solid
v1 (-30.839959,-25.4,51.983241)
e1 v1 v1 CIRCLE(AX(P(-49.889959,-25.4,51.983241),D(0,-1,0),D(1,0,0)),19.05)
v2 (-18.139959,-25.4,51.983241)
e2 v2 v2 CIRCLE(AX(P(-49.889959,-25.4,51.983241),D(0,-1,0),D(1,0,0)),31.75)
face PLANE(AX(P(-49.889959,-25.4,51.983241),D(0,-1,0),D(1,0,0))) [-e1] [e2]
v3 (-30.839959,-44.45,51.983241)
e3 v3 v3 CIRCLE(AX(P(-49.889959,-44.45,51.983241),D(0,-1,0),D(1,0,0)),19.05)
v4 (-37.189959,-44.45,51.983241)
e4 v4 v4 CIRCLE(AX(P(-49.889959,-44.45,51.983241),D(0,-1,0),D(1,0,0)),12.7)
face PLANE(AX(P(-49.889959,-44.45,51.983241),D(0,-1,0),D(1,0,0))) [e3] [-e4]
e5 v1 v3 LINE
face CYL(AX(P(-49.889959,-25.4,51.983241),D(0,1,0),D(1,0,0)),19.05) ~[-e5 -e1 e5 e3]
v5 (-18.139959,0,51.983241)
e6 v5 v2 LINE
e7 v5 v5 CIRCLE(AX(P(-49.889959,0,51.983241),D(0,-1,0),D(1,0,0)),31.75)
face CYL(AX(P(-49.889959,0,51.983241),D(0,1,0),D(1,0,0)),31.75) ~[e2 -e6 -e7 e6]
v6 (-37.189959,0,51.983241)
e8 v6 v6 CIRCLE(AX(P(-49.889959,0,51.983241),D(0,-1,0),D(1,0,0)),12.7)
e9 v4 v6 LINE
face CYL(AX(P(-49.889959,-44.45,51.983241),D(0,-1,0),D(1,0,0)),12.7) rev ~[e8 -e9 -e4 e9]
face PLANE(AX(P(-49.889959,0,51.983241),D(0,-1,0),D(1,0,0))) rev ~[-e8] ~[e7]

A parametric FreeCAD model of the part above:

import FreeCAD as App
import Part
import Sketcher

V = App.Vector
Q = App.Units.Quantity

doc = App.newDocument("Part")
body = doc.addObject("PartDesign::Body", "Body")

# Sketch on XZ plane
sketch1 = body.newObject("Sketcher::SketchObject", "Sketch")
sketch1.AttachmentSupport = (doc.getObject("XZ_Plane"), [""])
sketch1.MapMode = "FlatFace"
sketch1.addGeometry(Part.Circle(V(-50, 52, 0), V(0, 0, 1), 32), False)
sketch1.addConstraint([
    Sketcher.Constraint("Diameter", 0, Q("2.5 in")),
    Sketcher.Constraint("DistanceX", 0, 3, -1, 1, 49.889959),
    Sketcher.Constraint("DistanceY", -1, 1, 0, 3, 51.983241),
])
pad1 = body.newObject("PartDesign::Pad", "Pad")
pad1.Profile = sketch1
pad1.Length = Q("1 in")

# Sketch on XZ plane
sketch2 = body.newObject("Sketcher::SketchObject", "Sketch001")
sketch2.AttachmentSupport = (doc.getObject("XZ_Plane"), [""])
sketch2.MapMode = "FlatFace"
sketch2.AttachmentOffset = App.Placement(V(0, 0, 1 * 25.4), App.Rotation())
sketch2.addGeometry(Part.Circle(V(-50, 52, 0), V(0, 0, 1), 19), False)
sketch2.addConstraint([
    Sketcher.Constraint("Diameter", 0, Q("1.5 in")),
    Sketcher.Constraint("DistanceX", 0, 3, -1, 1, 49.889959),
    Sketcher.Constraint("DistanceY", -1, 1, 0, 3, 51.983241),
])
pad2 = body.newObject("PartDesign::Pad", "Pad001")
pad2.Profile = sketch2
pad2.Length = Q("0.75 in")

# Sketch on XZ plane
sketch3 = body.newObject("Sketcher::SketchObject", "Sketch002")
sketch3.AttachmentSupport = (doc.getObject("XZ_Plane"), [""])
sketch3.MapMode = "FlatFace"
sketch3.AttachmentOffset = App.Placement(V(0, 0, 1.75 * 25.4), App.Rotation())
sketch3.addGeometry(Part.Circle(V(-50, 52, 0), V(0, 0, 1), 13), False)
sketch3.addConstraint([
    Sketcher.Constraint("Diameter", 0, Q("1 in")),
    Sketcher.Constraint("DistanceX", 0, 3, -1, 1, 49.889959),
    Sketcher.Constraint("DistanceY", -1, 1, 0, 3, 51.983241),
])
pocket1 = body.newObject("PartDesign::Pocket", "Pocket")
pocket1.Profile = sketch3
pocket1.Type = "ThroughAll"

doc.recompute()
